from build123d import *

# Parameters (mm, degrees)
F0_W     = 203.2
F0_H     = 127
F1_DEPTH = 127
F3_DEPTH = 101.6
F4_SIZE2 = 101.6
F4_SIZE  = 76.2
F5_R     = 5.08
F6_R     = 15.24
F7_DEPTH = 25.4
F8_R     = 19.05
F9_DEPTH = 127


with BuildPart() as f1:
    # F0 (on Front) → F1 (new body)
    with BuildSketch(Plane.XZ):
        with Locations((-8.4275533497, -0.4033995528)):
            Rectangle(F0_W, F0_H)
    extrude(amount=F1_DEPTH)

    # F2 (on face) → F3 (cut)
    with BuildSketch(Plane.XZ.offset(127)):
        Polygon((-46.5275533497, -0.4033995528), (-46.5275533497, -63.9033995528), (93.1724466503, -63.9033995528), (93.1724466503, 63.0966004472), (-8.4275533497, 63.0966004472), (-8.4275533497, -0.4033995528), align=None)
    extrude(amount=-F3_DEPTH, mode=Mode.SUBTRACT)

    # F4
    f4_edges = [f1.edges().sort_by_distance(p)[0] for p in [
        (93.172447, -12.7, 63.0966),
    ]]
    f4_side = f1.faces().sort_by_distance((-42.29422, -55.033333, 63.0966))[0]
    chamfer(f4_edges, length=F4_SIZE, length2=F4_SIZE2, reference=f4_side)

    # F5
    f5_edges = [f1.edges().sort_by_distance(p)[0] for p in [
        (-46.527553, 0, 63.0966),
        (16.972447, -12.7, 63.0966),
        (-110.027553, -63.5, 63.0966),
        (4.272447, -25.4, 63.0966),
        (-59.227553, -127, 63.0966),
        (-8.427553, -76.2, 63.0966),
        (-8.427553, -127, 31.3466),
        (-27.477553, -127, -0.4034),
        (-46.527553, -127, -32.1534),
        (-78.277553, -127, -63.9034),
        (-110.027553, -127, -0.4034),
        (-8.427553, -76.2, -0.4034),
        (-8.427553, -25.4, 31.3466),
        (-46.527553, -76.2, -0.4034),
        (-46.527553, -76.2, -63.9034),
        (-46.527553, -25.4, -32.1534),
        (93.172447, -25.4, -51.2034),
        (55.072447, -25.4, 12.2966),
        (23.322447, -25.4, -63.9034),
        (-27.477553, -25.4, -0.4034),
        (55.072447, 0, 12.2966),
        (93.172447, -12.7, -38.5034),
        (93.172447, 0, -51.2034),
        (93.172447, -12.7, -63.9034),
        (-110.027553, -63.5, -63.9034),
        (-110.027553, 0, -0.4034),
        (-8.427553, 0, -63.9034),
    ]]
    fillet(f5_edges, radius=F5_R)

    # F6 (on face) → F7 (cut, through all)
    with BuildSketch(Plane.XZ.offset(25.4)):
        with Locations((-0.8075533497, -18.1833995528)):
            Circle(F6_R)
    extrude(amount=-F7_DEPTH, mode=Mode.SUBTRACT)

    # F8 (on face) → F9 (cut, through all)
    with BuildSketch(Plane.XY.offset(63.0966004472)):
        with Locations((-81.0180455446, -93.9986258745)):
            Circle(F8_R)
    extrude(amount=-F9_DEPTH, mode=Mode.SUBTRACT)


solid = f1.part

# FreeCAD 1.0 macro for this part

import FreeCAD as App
import Part
import Sketcher
Q = App.Units.Quantity


def edges_at(feature, points):
    """Names of the edges that pass closest to the given points."""
    edges = feature.Shape.Edges
    near = lambda p: min(range(len(edges)), key=lambda i: edges[i].distToShape(Part.Vertex(*p))[0])
    return sorted({f"Edge{near(p) + 1}" for p in points})

doc = App.newDocument("Part")
body = doc.addObject("PartDesign::Body", "Body")

sketch1 = doc.addObject("Sketcher::SketchObject", "Sketch")
body.addObject(sketch1)
sketch1.AttachmentSupport = (doc.XZ_Plane, [""])
sketch1.MapMode = "FlatFace"
sketch1.addGeometry([
    Part.LineSegment(App.Vector(-110, 63, 0), App.Vector(-110, -64, 0)),
    Part.LineSegment(App.Vector(-110, -64, 0), App.Vector(93, -64, 0)),
    Part.LineSegment(App.Vector(93, -64, 0), App.Vector(93, 63, 0)),
    Part.LineSegment(App.Vector(93, 63, 0), App.Vector(-110, 63, 0)),
], False)
sketch1.addConstraint([
    Sketcher.Constraint("Coincident", 0, 2, 1, 1),
    Sketcher.Constraint("Coincident", 1, 2, 2, 1),
    Sketcher.Constraint("Coincident", 2, 2, 3, 1),
    Sketcher.Constraint("Coincident", 3, 2, 0, 1),
    Sketcher.Constraint("Vertical", 0),
    Sketcher.Constraint("Horizontal", 1),
    Sketcher.Constraint("Vertical", 2),
    Sketcher.Constraint("Horizontal", 3),
    Sketcher.Constraint("DistanceX", 1, 1, 1, 2, Q("8 in")),
    Sketcher.Constraint("DistanceY", 0, 2, 0, 1, Q("5 in")),
    Sketcher.Constraint("DistanceY", 0, 2, -1, 1, Q("63.9034 mm")),
    Sketcher.Constraint("DistanceX", 0, 2, -1, 1, Q("110.027553 mm")),
])
pad1 = doc.addObject("PartDesign::Pad", "Pad")
body.addObject(pad1)
pad1.Profile = sketch1
pad1.Length = Q("5 in")

sketch2 = doc.addObject("Sketcher::SketchObject", "Sketch001")
body.addObject(sketch2)
sketch2.AttachmentSupport = (doc.XZ_Plane, [""])
sketch2.MapMode = "FlatFace"
sketch2.AttachmentOffset = App.Placement(App.Vector(0, 0, 5 * 25.4), App.Rotation())
sketch2.addGeometry([
    Part.LineSegment(App.Vector(-47, 0, 0), App.Vector(-47, -64, 0)),
    Part.LineSegment(App.Vector(-47, -64, 0), App.Vector(93, -64, 0)),
    Part.LineSegment(App.Vector(93, -64, 0), App.Vector(93, 63, 0)),
    Part.LineSegment(App.Vector(93, 63, 0), App.Vector(-8, 63, 0)),
    Part.LineSegment(App.Vector(-8, 63, 0), App.Vector(-8, 0, 0)),
    Part.LineSegment(App.Vector(-8, 0, 0), App.Vector(-47, 0, 0)),
], False)
sketch2.addConstraint([
    Sketcher.Constraint("Coincident", 0, 2, 1, 1),
    Sketcher.Constraint("Coincident", 1, 2, 2, 1),
    Sketcher.Constraint("Coincident", 2, 2, 3, 1),
    Sketcher.Constraint("Coincident", 3, 2, 4, 1),
    Sketcher.Constraint("Coincident", 4, 2, 5, 1),
    Sketcher.Constraint("Coincident", 5, 2, 0, 1),
    Sketcher.Constraint("Vertical", 0),
    Sketcher.Constraint("Horizontal", 1),
    Sketcher.Constraint("Vertical", 2),
    Sketcher.Constraint("Horizontal", 3),
    Sketcher.Constraint("Vertical", 4),
    Sketcher.Constraint("Horizontal", 5),
    Sketcher.Constraint("Equal", 0, 4),
    Sketcher.Constraint("DistanceX", 3, 2, 3, 1, Q("4 in")),
    Sketcher.Constraint("DistanceY", 2, 1, 2, 2, Q("5 in")),
    Sketcher.Constraint("DistanceX", 1, 1, 1, 2, Q("5.5 in")),
    Sketcher.Constraint("DistanceY", 0, 2, -1, 1, Q("63.9034 mm")),
    Sketcher.Constraint("DistanceX", 0, 2, -1, 1, Q("46.527553 mm")),
])
pocket1 = doc.addObject("PartDesign::Pocket", "Pocket")
body.addObject(pocket1)
pocket1.Profile = sketch2
pocket1.Length = Q("4 in")
doc.recompute()

chamfer = doc.addObject("PartDesign::Chamfer", "Chamfer")
body.addObject(chamfer)
chamfer.Base = (pocket1, edges_at(pocket1, [(93.172, -12.7, 63.097)]))
chamfer.ChamferType = "Two distances"
chamfer.Size = Q("3 in")
chamfer.Size2 = Q("4 in")
doc.recompute()

fillet = doc.addObject("PartDesign::Fillet", "Fillet")
body.addObject(fillet)
fillet.Base = (chamfer, ["Edge1"])
fillet.UseAllEdges = True
fillet.Radius = Q("0.2 in")

sketch3 = doc.addObject("Sketcher::SketchObject", "Sketch002")
body.addObject(sketch3)
sketch3.AttachmentSupport = (doc.XZ_Plane, [""])
sketch3.MapMode = "FlatFace"
sketch3.AttachmentOffset = App.Placement(App.Vector(0, 0, 1 * 25.4), App.Rotation())
sketch3.addGeometry(Part.Circle(App.Vector(-1, -18, 0), App.Vector(0, 0, 1), 15), False)
sketch3.addConstraint([
    Sketcher.Constraint("Diameter", 0, Q("1.2 in")),
    Sketcher.Constraint("DistanceY", 0, 3, -1, 1, Q("18.1834 mm")),
    Sketcher.Constraint("DistanceX", 0, 3, -1, 1, Q("0.807553 mm")),
])
pocket2 = doc.addObject("PartDesign::Pocket", "Pocket001")
body.addObject(pocket2)
pocket2.Profile = sketch3
pocket2.Type = "ThroughAll"

sketch4 = doc.addObject("Sketcher::SketchObject", "Sketch003")
body.addObject(sketch4)
sketch4.AttachmentSupport = (doc.XY_Plane, [""])
sketch4.MapMode = "FlatFace"
sketch4.AttachmentOffset = App.Placement(App.Vector(0, 0, 63.0966), App.Rotation())
sketch4.addGeometry(Part.Circle(App.Vector(-81, -94, 0), App.Vector(0, 0, 1), 19), False)
sketch4.addConstraint([
    Sketcher.Constraint("Diameter", 0, Q("1.5 in")),
    Sketcher.Constraint("DistanceX", 0, 3, -1, 1, Q("81.018046 mm")),
    Sketcher.Constraint("DistanceY", 0, 3, -1, 1, Q("93.998626 mm")),
])
pocket3 = doc.addObject("PartDesign::Pocket", "Pocket002")
body.addObject(pocket3)
pocket3.Profile = sketch4
pocket3.Type = "ThroughAll"

doc.recompute()
